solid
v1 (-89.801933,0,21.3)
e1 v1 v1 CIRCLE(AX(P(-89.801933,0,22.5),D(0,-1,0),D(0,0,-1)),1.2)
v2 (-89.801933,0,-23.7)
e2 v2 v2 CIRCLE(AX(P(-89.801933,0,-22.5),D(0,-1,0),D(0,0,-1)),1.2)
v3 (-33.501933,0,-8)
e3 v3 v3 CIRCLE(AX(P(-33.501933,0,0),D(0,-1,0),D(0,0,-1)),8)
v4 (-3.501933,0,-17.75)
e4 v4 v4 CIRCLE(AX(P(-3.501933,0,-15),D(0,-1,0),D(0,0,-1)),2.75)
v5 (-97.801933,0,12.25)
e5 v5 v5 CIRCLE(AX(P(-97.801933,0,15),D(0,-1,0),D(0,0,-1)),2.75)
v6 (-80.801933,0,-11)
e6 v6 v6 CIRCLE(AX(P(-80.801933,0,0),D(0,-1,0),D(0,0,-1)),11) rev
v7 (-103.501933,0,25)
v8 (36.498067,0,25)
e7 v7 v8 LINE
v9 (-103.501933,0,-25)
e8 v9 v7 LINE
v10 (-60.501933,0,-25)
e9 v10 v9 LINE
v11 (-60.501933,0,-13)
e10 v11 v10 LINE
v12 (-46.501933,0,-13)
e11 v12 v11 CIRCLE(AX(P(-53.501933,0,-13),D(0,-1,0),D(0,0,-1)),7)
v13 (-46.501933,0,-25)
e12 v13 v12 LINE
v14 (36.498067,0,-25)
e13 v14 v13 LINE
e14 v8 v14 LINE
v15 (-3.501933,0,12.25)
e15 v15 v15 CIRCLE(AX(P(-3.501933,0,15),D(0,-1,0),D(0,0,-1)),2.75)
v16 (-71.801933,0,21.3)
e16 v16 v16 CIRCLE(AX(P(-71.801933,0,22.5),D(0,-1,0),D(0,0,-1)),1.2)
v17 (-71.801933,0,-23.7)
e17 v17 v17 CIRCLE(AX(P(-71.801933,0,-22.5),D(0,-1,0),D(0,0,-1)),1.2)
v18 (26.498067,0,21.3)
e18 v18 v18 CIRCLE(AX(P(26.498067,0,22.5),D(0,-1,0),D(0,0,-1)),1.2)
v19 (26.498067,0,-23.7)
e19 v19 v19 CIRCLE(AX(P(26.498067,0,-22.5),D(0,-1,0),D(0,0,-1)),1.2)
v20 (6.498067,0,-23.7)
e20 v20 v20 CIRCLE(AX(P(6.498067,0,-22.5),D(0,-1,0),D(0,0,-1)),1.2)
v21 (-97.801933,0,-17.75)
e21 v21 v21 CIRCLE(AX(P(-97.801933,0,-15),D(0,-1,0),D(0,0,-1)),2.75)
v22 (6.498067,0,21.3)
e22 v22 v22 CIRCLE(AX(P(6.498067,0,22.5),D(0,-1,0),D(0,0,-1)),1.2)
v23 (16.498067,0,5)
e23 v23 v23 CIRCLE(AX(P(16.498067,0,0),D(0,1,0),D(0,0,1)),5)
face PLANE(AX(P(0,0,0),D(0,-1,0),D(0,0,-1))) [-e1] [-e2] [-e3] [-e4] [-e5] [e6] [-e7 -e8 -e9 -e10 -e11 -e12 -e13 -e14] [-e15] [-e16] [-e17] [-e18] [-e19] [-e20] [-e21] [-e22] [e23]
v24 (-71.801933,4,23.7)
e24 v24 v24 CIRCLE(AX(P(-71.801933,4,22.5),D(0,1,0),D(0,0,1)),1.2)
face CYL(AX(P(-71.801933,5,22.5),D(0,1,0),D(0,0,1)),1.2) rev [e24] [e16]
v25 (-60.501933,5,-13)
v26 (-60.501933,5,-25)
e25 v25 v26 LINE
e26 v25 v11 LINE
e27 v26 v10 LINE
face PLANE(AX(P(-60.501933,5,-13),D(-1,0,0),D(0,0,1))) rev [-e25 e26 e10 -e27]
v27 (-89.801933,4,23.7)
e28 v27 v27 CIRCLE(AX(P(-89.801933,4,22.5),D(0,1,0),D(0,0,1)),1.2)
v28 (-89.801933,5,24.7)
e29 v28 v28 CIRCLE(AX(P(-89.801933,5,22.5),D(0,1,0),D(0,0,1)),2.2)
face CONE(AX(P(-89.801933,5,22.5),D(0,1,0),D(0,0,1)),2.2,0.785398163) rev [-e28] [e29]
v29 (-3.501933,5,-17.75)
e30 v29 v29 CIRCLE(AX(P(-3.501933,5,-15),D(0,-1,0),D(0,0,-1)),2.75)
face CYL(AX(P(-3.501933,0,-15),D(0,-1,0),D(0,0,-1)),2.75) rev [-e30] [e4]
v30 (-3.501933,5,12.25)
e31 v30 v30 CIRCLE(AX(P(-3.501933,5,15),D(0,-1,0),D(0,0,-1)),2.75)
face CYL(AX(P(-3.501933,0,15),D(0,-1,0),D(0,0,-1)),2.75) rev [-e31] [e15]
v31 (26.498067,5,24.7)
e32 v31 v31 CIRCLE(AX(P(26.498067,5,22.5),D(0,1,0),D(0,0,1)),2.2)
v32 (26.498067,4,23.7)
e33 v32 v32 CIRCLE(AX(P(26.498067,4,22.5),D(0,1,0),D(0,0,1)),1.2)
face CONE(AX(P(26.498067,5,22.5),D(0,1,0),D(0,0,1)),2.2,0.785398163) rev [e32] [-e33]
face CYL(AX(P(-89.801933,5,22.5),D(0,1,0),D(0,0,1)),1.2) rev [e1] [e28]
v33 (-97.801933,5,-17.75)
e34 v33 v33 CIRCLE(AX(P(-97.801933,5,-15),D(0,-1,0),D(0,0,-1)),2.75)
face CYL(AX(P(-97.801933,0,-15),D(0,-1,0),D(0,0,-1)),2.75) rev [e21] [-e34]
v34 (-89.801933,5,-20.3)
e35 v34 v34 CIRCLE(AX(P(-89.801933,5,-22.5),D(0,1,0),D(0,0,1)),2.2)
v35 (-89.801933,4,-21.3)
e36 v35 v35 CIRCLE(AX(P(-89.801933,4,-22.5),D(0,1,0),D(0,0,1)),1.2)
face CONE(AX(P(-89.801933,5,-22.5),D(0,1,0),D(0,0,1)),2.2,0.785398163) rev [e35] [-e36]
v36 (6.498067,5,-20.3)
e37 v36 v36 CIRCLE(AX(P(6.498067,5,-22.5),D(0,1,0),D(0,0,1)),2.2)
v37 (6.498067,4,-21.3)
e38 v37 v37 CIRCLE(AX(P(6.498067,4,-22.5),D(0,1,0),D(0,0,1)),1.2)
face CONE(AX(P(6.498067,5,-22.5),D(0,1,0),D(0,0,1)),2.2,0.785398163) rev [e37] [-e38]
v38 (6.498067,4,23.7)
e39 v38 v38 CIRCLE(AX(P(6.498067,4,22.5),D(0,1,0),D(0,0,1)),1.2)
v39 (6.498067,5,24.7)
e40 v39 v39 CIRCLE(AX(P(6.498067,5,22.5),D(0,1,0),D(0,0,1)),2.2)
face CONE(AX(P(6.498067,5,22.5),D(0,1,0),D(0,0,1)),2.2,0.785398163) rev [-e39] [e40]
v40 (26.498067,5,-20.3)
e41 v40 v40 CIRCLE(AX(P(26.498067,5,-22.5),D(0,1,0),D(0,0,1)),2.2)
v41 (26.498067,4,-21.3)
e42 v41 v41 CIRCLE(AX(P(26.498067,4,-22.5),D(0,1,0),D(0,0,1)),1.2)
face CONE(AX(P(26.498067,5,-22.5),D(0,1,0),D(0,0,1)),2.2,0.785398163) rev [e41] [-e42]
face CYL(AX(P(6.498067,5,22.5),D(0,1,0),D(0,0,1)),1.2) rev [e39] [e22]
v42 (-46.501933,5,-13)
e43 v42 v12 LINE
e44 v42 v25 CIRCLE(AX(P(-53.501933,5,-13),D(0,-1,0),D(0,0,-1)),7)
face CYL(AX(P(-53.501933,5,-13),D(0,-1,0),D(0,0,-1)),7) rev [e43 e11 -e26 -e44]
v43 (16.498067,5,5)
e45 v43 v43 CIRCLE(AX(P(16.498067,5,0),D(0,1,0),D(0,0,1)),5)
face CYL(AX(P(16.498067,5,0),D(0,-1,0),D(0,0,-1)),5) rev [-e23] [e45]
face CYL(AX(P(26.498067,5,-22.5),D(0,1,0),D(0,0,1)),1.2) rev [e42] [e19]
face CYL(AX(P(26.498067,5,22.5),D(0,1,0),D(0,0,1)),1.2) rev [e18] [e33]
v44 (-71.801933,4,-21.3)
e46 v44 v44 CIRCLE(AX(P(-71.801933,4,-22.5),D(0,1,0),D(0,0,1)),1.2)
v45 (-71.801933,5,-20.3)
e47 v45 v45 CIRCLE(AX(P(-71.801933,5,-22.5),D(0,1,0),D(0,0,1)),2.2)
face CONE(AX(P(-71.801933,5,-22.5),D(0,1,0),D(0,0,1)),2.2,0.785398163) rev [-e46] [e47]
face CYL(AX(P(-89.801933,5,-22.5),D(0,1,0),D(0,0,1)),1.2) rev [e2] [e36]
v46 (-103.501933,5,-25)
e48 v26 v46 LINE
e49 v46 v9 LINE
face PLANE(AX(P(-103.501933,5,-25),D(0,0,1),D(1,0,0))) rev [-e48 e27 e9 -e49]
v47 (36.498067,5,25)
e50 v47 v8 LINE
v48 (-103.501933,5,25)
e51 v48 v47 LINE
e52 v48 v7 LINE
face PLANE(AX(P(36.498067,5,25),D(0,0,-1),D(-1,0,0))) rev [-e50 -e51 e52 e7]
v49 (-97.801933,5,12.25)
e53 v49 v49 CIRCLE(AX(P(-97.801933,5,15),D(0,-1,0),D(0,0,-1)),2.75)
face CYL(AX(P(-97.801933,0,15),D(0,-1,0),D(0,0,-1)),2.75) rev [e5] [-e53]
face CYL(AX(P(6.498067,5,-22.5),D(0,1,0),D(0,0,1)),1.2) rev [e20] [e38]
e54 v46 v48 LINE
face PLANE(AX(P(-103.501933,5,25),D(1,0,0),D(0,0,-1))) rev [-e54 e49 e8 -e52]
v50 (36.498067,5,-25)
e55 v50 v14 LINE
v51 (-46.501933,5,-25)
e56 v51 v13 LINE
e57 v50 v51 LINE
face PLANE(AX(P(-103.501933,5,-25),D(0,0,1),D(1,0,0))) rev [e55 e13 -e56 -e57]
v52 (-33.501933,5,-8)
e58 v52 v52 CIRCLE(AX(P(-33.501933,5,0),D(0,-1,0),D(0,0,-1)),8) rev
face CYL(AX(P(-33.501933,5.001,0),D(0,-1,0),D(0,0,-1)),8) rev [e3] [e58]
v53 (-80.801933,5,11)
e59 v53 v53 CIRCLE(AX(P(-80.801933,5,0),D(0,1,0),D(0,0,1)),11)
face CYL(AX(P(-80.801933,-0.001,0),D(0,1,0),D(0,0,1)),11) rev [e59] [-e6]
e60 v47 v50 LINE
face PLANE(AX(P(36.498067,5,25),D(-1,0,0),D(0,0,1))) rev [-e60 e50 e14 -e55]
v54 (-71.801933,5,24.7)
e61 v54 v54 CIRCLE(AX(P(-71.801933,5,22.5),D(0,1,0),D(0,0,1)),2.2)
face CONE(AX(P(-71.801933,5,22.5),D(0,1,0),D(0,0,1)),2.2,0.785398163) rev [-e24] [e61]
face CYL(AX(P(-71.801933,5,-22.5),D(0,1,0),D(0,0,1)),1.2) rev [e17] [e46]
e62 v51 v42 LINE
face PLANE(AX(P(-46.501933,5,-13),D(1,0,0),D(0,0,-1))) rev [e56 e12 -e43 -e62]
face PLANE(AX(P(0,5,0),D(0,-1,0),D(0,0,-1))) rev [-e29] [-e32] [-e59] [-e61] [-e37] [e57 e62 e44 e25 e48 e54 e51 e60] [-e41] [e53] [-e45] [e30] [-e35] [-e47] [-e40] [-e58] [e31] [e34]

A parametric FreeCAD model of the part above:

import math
import FreeCAD as App
import Part
import Sketcher
from FreeCAD import Vector
Q = App.Units.Quantity


def add_polygon(sketch, points):
    """Adds a closed chain of lines whose ends are joined by coincident constraints."""
    first, n = sketch.GeometryCount, len(points)
    for a, b in zip(points, points[1:] + points[:1]):
        sketch.addGeometry(Part.LineSegment(App.Vector(*a, 0), App.Vector(*b, 0)), False)
    for i in range(n):
        sketch.addConstraint(Sketcher.Constraint("Coincident", first + i, 2, first + (i + 1) % n, 1))

doc = App.newDocument("Part")
body = doc.addObject("PartDesign::Body", "Body")

sketch1 = body.newObject("Sketcher::SketchObject", "Sketch")
sketch1.AttachmentSupport = (doc.getObject("XZ_Plane"), [""])
sketch1.MapMode = "FlatFace"
add_polygon(sketch1, [(-104, -25), (-104, 25), (36, 25), (36, -25)])
sketch1.addGeometry(Part.Circle(Vector(16, 0, 0), Vector(0, 0, 1), 5), False)
sketch1.addConstraint(Sketcher.Constraint("Vertical", 0))
sketch1.addConstraint(Sketcher.Constraint("Horizontal", 1))
sketch1.addConstraint(Sketcher.Constraint("Vertical", 2))
sketch1.addConstraint(Sketcher.Constraint("Horizontal", 3))
sketch1.addConstraint(Sketcher.Constraint("PointOnObject", 4, 3, -1))
sketch1.addConstraint(Sketcher.Constraint("Diameter", 4, Q("10 mm")))
sketch1.addConstraint(Sketcher.Constraint("DistanceX", 1, 1, 1, 2, Q("140 mm")))
sketch1.addConstraint(Sketcher.Constraint("DistanceY", 0, 1, 0, 2, Q("50 mm")))
sketch1.addConstraint(Sketcher.Constraint("DistanceY", -1, 1, 0, 2, Q("25 mm")))
sketch1.addConstraint(Sketcher.Constraint("DistanceX", 0, 2, 4, 3, Q("120 mm")))
sketch1.addConstraint(Sketcher.Constraint("DistanceX", -1, 1, 4, 3, Q("16.498067 mm")))
pad1 = body.newObject("PartDesign::Pad", "Pad")
pad1.Profile = sketch1
pad1.Length = 5
pad1.Reversed = True

sketch2 = body.newObject("Sketcher::SketchObject", "Sketch001")
sketch2.AttachmentSupport = (doc.getObject("XZ_Plane"), [""])
sketch2.MapMode = "FlatFace"
sketch2.addGeometry(Part.Circle(Vector(-34, 0, 0), Vector(0, 0, 1), 8), False)
sketch2.addConstraint(Sketcher.Constraint("PointOnObject", 0, 3, -1))
sketch2.addConstraint(Sketcher.Constraint("Diameter", 0, Q("16 mm")))
sketch2.addConstraint(Sketcher.Constraint("DistanceX", 0, 3, -1, 1, Q("33.501933 mm")))
pocket1 = body.newObject("PartDesign::Pocket", "Pocket")
pocket1.Profile = sketch2
pocket1.Type = "UpToFirst"

sketch3 = body.newObject("Sketcher::SketchObject", "Sketch002")
sketch3.AttachmentSupport = (doc.getObject("XZ_Plane"), [""])
sketch3.MapMode = "FlatFace"
sketch3.AttachmentOffset = App.Placement(Vector(0, 0, -5), App.Rotation())
sketch3.addGeometry(Part.Circle(Vector(-81, 0, 0), Vector(0, 0, 1), 11), False)
sketch3.addConstraint(Sketcher.Constraint("PointOnObject", 0, 3, -1))
sketch3.addConstraint(Sketcher.Constraint("Diameter", 0, Q("22 mm")))
sketch3.addConstraint(Sketcher.Constraint("DistanceX", 0, 3, -1, 1, Q("80.801933 mm")))
pocket2 = body.newObject("PartDesign::Pocket", "Pocket001")
pocket2.Profile = sketch3
pocket2.Type = "UpToFirst"
pocket2.Reversed = True

sketch4 = body.newObject("Sketcher::SketchObject", "Sketch003")
sketch4.AttachmentSupport = (doc.getObject("XZ_Plane"), [""])
sketch4.MapMode = "FlatFace"
sketch4.AttachmentOffset = App.Placement(Vector(0, 0, -5), App.Rotation())
sketch4.addGeometry(Part.Circle(Vector(-89.8, -22.5, 0), Vector(0, 0, 1), 1.2), False)
sketch4.addGeometry(Part.Circle(Vector(-71.8, -22.5, 0), Vector(0, 0, 1), 1.2), False)
sketch4.addGeometry(Part.Circle(Vector(-71.8, 22.5, 0), Vector(0, 0, 1), 1.2), False)
sketch4.addGeometry(Part.Circle(Vector(-89.8, 22.5, 0), Vector(0, 0, 1), 1.2), False)
sketch4.addGeometry(Part.Circle(Vector(6.5, -22.5, 0), Vector(0, 0, 1), 1.2), False)
sketch4.addGeometry(Part.Circle(Vector(26.5, -22.5, 0), Vector(0, 0, 1), 1.2), False)
sketch4.addGeometry(Part.Circle(Vector(6.5, 22.5, 0), Vector(0, 0, 1), 1.2), False)
sketch4.addGeometry(Part.Circle(Vector(26.5, 22.5, 0), Vector(0, 0, 1), 1.2), False)
sketch4.addConstraint(Sketcher.Constraint("Equal", 0, 1))
sketch4.addConstraint(Sketcher.Constraint("Equal", 1, 2))
sketch4.addConstraint(Sketcher.Constraint("Equal", 2, 3))
sketch4.addConstraint(Sketcher.Constraint("Equal", 3, 4))
sketch4.addConstraint(Sketcher.Constraint("Equal", 4, 5))
sketch4.addConstraint(Sketcher.Constraint("Equal", 5, 6))
sketch4.addConstraint(Sketcher.Constraint("Equal", 6, 7))
sketch4.addConstraint(Sketcher.Constraint("Symmetric", 1, 3, 2, 3, -1))
sketch4.addConstraint(Sketcher.Constraint("Symmetric", 0, 3, 3, 3, -1))
sketch4.addConstraint(Sketcher.Constraint("Symmetric", 4, 3, 6, 3, -1))
sketch4.addConstraint(Sketcher.Constraint("Symmetric", 5, 3, 7, 3, -1))
sketch4.addConstraint(Sketcher.Constraint("Horizontal", 0, 3, 1, 3))
sketch4.addConstraint(Sketcher.Constraint("Horizontal", 1, 3, 4, 3))
sketch4.addConstraint(Sketcher.Constraint("Horizontal", 4, 3, 5, 3))
sketch4.addConstraint(Sketcher.Constraint("Diameter", 0, Q("2.4 mm")))
sketch4.addConstraint(Sketcher.Constraint("DistanceX", 0, 3, 1, 3, Q("18 mm")))
sketch4.addConstraint(Sketcher.Constraint("DistanceY", 1, 3, 2, 3, Q("45 mm")))
sketch4.addConstraint(Sketcher.Constraint("DistanceX", 4, 3, 5, 3, Q("20 mm")))
sketch4.addConstraint(Sketcher.Constraint("DistanceX", 1, 3, 4, 3, Q("78.3 mm")))
sketch4.addConstraint(Sketcher.Constraint("DistanceX", 0, 3, -1, 1, Q("89.801933 mm")))
doc.recompute()
hole = body.newObject("PartDesign::Hole", "Hole")
hole.Profile = sketch4
hole.ThreadType = "None"
hole.Diameter = 2.4
hole.DepthType = "ThroughAll"
hole.HoleCutType = "Countersink"
hole.HoleCutDiameter = 4.4
hole.HoleCutCountersinkAngle = 90
hole.Reversed = True

sketch5 = body.newObject("Sketcher::SketchObject", "Sketch004")
sketch5.AttachmentSupport = (doc.getObject("XZ_Plane"), [""])
sketch5.MapMode = "FlatFace"
sketch5.addGeometry(Part.Circle(Vector(-97.8, -15, 0), Vector(0, 0, 1), 2.8), False)
sketch5.addGeometry(Part.Circle(Vector(-97.8, 15, 0), Vector(0, 0, 1), 2.8), False)
sketch5.addGeometry(Part.Circle(Vector(-3.5, 15, 0), Vector(0, 0, 1), 2.8), False)
sketch5.addGeometry(Part.Circle(Vector(-3.5, -15, 0), Vector(0, 0, 1), 2.8), False)
sketch5.addConstraint(Sketcher.Constraint("Equal", 0, 1))
sketch5.addConstraint(Sketcher.Constraint("Equal", 1, 2))
sketch5.addConstraint(Sketcher.Constraint("Equal", 2, 3))
sketch5.addConstraint(Sketcher.Constraint("Symmetric", 0, 3, 1, 3, -1))
sketch5.addConstraint(Sketcher.Constraint("Symmetric", 2, 3, 3, 3, -1))
sketch5.addConstraint(Sketcher.Constraint("Horizontal", 1, 3, 2, 3))
sketch5.addConstraint(Sketcher.Constraint("Diameter", 0, Q("5.5 mm")))
sketch5.addConstraint(Sketcher.Constraint("DistanceY", 0, 3, -1, 1, Q("15 mm")))
sketch5.addConstraint(Sketcher.Constraint("DistanceX", 1, 3, 2, 3, Q("94.3 mm")))
sketch5.addConstraint(Sketcher.Constraint("DistanceX", 0, 3, -1, 1, Q("97.801933 mm")))
doc.recompute()
hole2 = body.newObject("PartDesign::Hole", "Hole001")
hole2.Profile = sketch5
hole2.ThreadType = "None"
hole2.Diameter = 5.5
hole2.DepthType = "Dimension"
hole2.Depth = 19.75
hole2.DrillPoint = "Angled"
hole2.DrillPointAngle = 118

sketch6 = body.newObject("Sketcher::SketchObject", "Sketch005")
sketch6.AttachmentSupport = (doc.getObject("XZ_Plane"), [""])
sketch6.MapMode = "FlatFace"
sketch6.addGeometry(Part.LineSegment(Vector(-47, -25, 0), Vector(-47, -13, 0)), False)
sketch6.addGeometry(Part.ArcOfCircle(Part.Circle(Vector(-54, -13, 0), Vector(0, 0, 1), 7), math.radians(0), math.radians(180)), False)
sketch6.addGeometry(Part.LineSegment(Vector(-61, -13, 0), Vector(-61, -25, 0)), False)
sketch6.addGeometry(Part.ArcOfCircle(Part.Circle(Vector(-54, -25, 0), Vector(0, 0, 1), 7), math.radians(180), math.radians(360)), False)
sketch6.addConstraint(Sketcher.Constraint("Tangent", 0, 2, 1, 1))
sketch6.addConstraint(Sketcher.Constraint("Tangent", 1, 2, 2, 1))
sketch6.addConstraint(Sketcher.Constraint("Tangent", 2, 2, 3, 1))
sketch6.addConstraint(Sketcher.Constraint("Tangent", 3, 2, 0, 1))
sketch6.addConstraint(Sketcher.Constraint("Vertical", 0))
sketch6.addConstraint(Sketcher.Constraint("Vertical", 2))
sketch6.addConstraint(Sketcher.Constraint("Radius", 1, Q("7 mm")))
sketch6.addConstraint(Sketcher.Constraint("DistanceY", 0, 1, 0, 2, Q("12 mm")))
sketch6.addConstraint(Sketcher.Constraint("DistanceY", 1, 3, -1, 1, Q("13 mm")))
sketch6.addConstraint(Sketcher.Constraint("DistanceX", 1, 3, -1, 1, Q("53.501933 mm")))
pocket3 = body.newObject("PartDesign::Pocket", "Pocket002")
pocket3.Profile = sketch6
pocket3.Type = "ThroughAll"

doc.recompute()
